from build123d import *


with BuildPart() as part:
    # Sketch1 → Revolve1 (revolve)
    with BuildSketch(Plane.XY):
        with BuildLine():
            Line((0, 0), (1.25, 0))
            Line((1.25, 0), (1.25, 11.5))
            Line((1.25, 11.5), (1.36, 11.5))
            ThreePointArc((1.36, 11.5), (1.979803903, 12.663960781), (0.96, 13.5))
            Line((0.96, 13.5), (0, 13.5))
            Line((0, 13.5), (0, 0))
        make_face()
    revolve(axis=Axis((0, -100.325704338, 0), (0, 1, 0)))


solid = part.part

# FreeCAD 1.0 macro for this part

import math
import FreeCAD as App
import Part
import Sketcher
Q = App.Units.Quantity

doc = App.newDocument("Part")
params = doc.addObject("Spreadsheet::Sheet", "Params")
for row, (alias, value) in enumerate([
    ("sketch1_radius", "1.04 mm"),
    ("sketch1_height", "11.5 mm"),
    ("sketch1_height2", "13.5 mm"),
    ("sketch1_width", "1.25 mm"),
    ("sketch1_width2", "0.11 mm"),
    ("revolution_angle", "360 deg"),
], start=1):
    params.set(f"A{row}", alias)
    params.set(f"B{row}", "=" + value)
    params.setAlias(f"B{row}", alias)

body = doc.addObject("PartDesign::Body", "Body")

sketch1 = body.newObject("Sketcher::SketchObject", "Sketch")
sketch1.AttachmentSupport = (doc.getObject("XY_Plane"), [""])
sketch1.MapMode = "FlatFace"
sketch1.addGeometry([
    Part.LineSegment(App.Vector(0, 0, 0), App.Vector(1.25, 0, 0)),
    Part.LineSegment(App.Vector(1.25, 0, 0), App.Vector(1.25, 11.5, 0)),
    Part.LineSegment(App.Vector(1.25, 11.5, 0), App.Vector(1.36, 11.5, 0)),
    Part.ArcOfCircle(Part.Circle(App.Vector(0.96, 12.46, 0), App.Vector(0, 0, 1), 1.04), math.radians(-67), math.radians(90)),
    Part.LineSegment(App.Vector(0.96, 13.5, 0), App.Vector(0, 13.5, 0)),
    Part.LineSegment(App.Vector(0, 13.5, 0), App.Vector(0, 0, 0)),
], False)
sketch1.addConstraint([
    Sketcher.Constraint("Coincident", 0, 2, 1, 1),
    Sketcher.Constraint("Coincident", 1, 2, 2, 1),
    Sketcher.Constraint("Coincident", 2, 2, 3, 1),
    Sketcher.Constraint("Tangent", 3, 2, 4, 1),
    Sketcher.Constraint("Coincident", 4, 2, 5, 1),
    Sketcher.Constraint("Coincident", 5, 2, 0, 1),
    Sketcher.Constraint("Horizontal", 0),
    Sketcher.Constraint("Vertical", 1),
    Sketcher.Constraint("Horizontal", 2),
    Sketcher.Constraint("Horizontal", 4),
    Sketcher.Constraint("Vertical", 5),
    Sketcher.Constraint("Coincident", 5, 2, -1, 1),
    Sketcher.Constraint("Radius", 3, Q("1.04 mm")),
    Sketcher.Constraint("DistanceY", 1, 1, 1, 2, Q("11.5 mm")),
    Sketcher.Constraint("DistanceY", 5, 2, 5, 1, Q("13.5 mm")),
    Sketcher.Constraint("DistanceX", 0, 1, 0, 2, Q("1.25 mm")),
    Sketcher.Constraint("DistanceX", 2, 1, 2, 2, Q("0.11 mm")),
])
sketch1.setExpression("Constraints[12]", "Params.sketch1_radius")
sketch1.setExpression("Constraints[13]", "Params.sketch1_height")
sketch1.setExpression("Constraints[14]", "Params.sketch1_height2")
sketch1.setExpression("Constraints[15]", "Params.sketch1_width")
sketch1.setExpression("Constraints[16]", "Params.sketch1_width2")
revolution = body.newObject("PartDesign::Revolution", "Revolution")
revolution.Profile = sketch1
revolution.ReferenceAxis = (sketch1, ["V_Axis"])
revolution.setExpression("Angle", "Params.revolution_angle")

doc.recompute()
